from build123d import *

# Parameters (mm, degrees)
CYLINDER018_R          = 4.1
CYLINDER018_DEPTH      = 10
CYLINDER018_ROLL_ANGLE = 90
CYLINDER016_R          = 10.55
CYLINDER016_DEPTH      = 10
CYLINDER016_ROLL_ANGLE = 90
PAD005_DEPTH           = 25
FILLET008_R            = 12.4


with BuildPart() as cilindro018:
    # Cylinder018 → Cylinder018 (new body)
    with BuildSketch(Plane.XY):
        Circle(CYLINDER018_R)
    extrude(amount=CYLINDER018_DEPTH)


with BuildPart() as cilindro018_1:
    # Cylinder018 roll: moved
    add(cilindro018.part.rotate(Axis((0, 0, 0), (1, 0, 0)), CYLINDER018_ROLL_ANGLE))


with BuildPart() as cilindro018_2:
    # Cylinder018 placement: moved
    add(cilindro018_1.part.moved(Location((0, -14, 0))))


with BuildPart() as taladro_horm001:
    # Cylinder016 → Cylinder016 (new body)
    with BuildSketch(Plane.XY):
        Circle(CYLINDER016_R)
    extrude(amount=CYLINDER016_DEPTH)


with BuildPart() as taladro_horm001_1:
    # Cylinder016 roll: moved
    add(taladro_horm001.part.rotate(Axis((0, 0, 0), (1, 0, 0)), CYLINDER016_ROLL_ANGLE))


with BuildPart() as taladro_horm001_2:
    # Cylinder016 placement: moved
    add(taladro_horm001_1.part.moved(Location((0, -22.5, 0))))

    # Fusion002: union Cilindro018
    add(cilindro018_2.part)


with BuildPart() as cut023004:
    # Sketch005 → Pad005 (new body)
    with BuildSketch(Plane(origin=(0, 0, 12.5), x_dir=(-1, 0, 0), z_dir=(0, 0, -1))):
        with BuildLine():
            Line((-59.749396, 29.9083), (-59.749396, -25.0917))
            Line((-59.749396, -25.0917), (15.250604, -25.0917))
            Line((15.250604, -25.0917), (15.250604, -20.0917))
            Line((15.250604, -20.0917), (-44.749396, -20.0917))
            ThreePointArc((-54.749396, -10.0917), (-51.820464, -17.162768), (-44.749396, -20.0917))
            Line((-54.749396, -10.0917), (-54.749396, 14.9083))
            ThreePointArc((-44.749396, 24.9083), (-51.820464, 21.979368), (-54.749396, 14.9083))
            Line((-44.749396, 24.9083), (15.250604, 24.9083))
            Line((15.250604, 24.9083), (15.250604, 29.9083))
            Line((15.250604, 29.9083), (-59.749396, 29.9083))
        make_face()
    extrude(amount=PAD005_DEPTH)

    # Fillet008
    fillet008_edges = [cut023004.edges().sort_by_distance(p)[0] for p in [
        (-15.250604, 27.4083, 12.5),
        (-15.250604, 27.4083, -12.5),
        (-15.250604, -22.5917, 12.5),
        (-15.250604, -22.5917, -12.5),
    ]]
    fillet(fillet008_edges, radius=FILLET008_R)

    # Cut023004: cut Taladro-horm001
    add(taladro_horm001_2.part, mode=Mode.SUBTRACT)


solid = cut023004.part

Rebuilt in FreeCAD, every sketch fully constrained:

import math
import FreeCAD as App
import Part
import Sketcher
from FreeCAD import Vector
Q = App.Units.Quantity


def edges_at(feature, points):
    """Names of the edges that pass closest to the given points."""
    edges = feature.Shape.Edges
    near = lambda p: min(range(len(edges)), key=lambda i: edges[i].distToShape(Part.Vertex(*p))[0])
    return sorted({f"Edge{near(p) + 1}" for p in points})

doc = App.newDocument("Part")
body = doc.addObject("PartDesign::Body", "Body")

# Sketch on XY plane
sketch1 = body.newObject("Sketcher::SketchObject", "Sketch")
sketch1.AttachmentSupport = (doc.getObject("XY_Plane"), [""])
sketch1.MapMode = "FlatFace"
sketch1.addGeometry(Part.Circle(Vector(0, 0, 0), Vector(0, 0, 1), 4.1), False)
sketch1.addConstraint([
    Sketcher.Constraint("Coincident", 0, 3, -1, 1),
    Sketcher.Constraint("Diameter", 0, Q("8.2 mm")),
])
pad1 = body.newObject("PartDesign::Pad", "Pad")
pad1.Profile = sketch1
pad1.Length = 10
body2 = doc.addObject("PartDesign::Body", "Body001")
doc.recompute()

body.Placement = App.Placement(Vector(0, 0, 0), App.Rotation(Vector(1, 0, 0), 90))
boolean = body2.newObject("PartDesign::Boolean", "Boolean")
boolean.Type = "Fuse"
boolean.addObjects([body])
body3 = doc.addObject("PartDesign::Body", "Body002")
doc.recompute()

body2.Placement = App.Placement(Vector(0, -14, 0), App.Rotation(Vector(0, 0, 1), 0))
boolean2 = body3.newObject("PartDesign::Boolean", "Boolean001")
boolean2.Type = "Fuse"
boolean2.addObjects([body2])
body4 = doc.addObject("PartDesign::Body", "Body003")

# Sketch on XY plane
sketch2 = body4.newObject("Sketcher::SketchObject", "Sketch001")
sketch2.AttachmentSupport = (doc.getObject("XY_Plane003"), [""])
sketch2.MapMode = "FlatFace"
sketch2.addGeometry(Part.Circle(Vector(0, 0, 0), Vector(0, 0, 1), 11), False)
sketch2.addConstraint([
    Sketcher.Constraint("Coincident", 0, 3, -1, 1),
    Sketcher.Constraint("Diameter", 0, Q("21.1 mm")),
])
pad2 = body4.newObject("PartDesign::Pad", "Pad001")
pad2.Profile = sketch2
pad2.Length = 10
body5 = doc.addObject("PartDesign::Body", "Body004")
doc.recompute()

body4.Placement = App.Placement(Vector(0, 0, 0), App.Rotation(Vector(1, 0, 0), 90))
boolean3 = body5.newObject("PartDesign::Boolean", "Boolean002")
boolean3.Type = "Fuse"
boolean3.addObjects([body4])
body6 = doc.addObject("PartDesign::Body", "Body005")
doc.recompute()

body5.Placement = App.Placement(Vector(0, -22.5, 0), App.Rotation(Vector(0, 0, 1), 0))
boolean4 = body6.newObject("PartDesign::Boolean", "Boolean003")
boolean4.Type = "Fuse"
boolean4.addObjects([body5])
doc.recompute()

boolean5 = body6.newObject("PartDesign::Boolean", "Boolean004")
boolean5.Type = "Fuse"
boolean5.addObjects([body3])
body7 = doc.addObject("PartDesign::Body", "Body006")

# Sketch on XY plane
sketch3 = body7.newObject("Sketcher::SketchObject", "Sketch002")
sketch3.AttachmentSupport = (doc.getObject("XY_Plane006"), [""])
sketch3.MapMode = "FlatFace"
sketch3.AttachmentOffset = App.Placement(Vector(0, 0, 12.5), App.Rotation())
sketch3.addGeometry([
    Part.LineSegment(Vector(60, 30, 0), Vector(60, -25, 0)),  # 0
    Part.LineSegment(Vector(60, -25, 0), Vector(-15, -25, 0)),  # 1
    Part.LineSegment(Vector(-15, -25, 0), Vector(-15, -20, 0)),  # 2
    Part.LineSegment(Vector(-15, -20, 0), Vector(45, -20, 0)),  # 3
    Part.ArcOfCircle(Part.Circle(Vector(45, -10, 0), Vector(0, 0, 1), 10), math.radians(-90), math.radians(0)),  # 4
    Part.LineSegment(Vector(55, -10, 0), Vector(55, 15, 0)),  # 5
    Part.ArcOfCircle(Part.Circle(Vector(45, 15, 0), Vector(0, 0, 1), 10), math.radians(0), math.radians(90)),  # 6
    Part.LineSegment(Vector(45, 25, 0), Vector(-15, 25, 0)),  # 7
    Part.LineSegment(Vector(-15, 25, 0), Vector(-15, 30, 0)),  # 8
    Part.LineSegment(Vector(-15, 30, 0), Vector(60, 30, 0)),  # 9
], False)
sketch3.addConstraint([
    Sketcher.Constraint("Coincident", 0, 2, 1, 1),
    Sketcher.Constraint("Coincident", 1, 2, 2, 1),
    Sketcher.Constraint("Coincident", 2, 2, 3, 1),
    Sketcher.Constraint("Tangent", 3, 2, 4, 1),
    Sketcher.Constraint("Tangent", 4, 2, 5, 1),
    Sketcher.Constraint("Tangent", 5, 2, 6, 1),
    Sketcher.Constraint("Tangent", 6, 2, 7, 1),
    Sketcher.Constraint("Coincident", 7, 2, 8, 1),
    Sketcher.Constraint("Coincident", 8, 2, 9, 1),
    Sketcher.Constraint("Coincident", 9, 2, 0, 1),
    Sketcher.Constraint("Vertical", 0),
    Sketcher.Constraint("Horizontal", 1),
    Sketcher.Constraint("Vertical", 2),
    Sketcher.Constraint("Horizontal", 3),
    Sketcher.Constraint("Vertical", 5),
    Sketcher.Constraint("Horizontal", 7),
    Sketcher.Constraint("Vertical", 8),
    Sketcher.Constraint("Horizontal", 9),
    Sketcher.Constraint("Equal", 4, 6),
    Sketcher.Constraint("Vertical", 2, 2, 7, 2),
    Sketcher.Constraint("Equal", 2, 8),
    Sketcher.Constraint("Radius", 4, Q("9.999999 mm")),
    Sketcher.Constraint("DistanceX", 1, 2, 1, 1, Q("75 mm")),
    Sketcher.Constraint("DistanceX", 3, 1, 3, 2, Q("60 mm")),
    Sketcher.Constraint("DistanceY", 0, 2, 0, 1, Q("55 mm")),
    Sketcher.Constraint("DistanceY", 2, 1, 2, 2, Q("5 mm")),
    Sketcher.Constraint("DistanceY", 4, 3, -1, 1, Q("10.091701 mm")),
    Sketcher.Constraint("DistanceX", -1, 1, 4, 3, Q("44.749397 mm")),
])
pad3 = body7.newObject("PartDesign::Pad", "Pad002")
pad3.Profile = sketch3
pad3.Length = 25
pad3.Reversed = True
doc.recompute()

fillet = body7.newObject("PartDesign::Fillet", "Fillet")
fillet.Base = (pad3, edges_at(pad3, [
    (-15.251, 27.408, 12.5),
    (-15.251, 27.408, -12.5),
    (-15.251, -22.592, 12.5),
    (-15.251, -22.592, -12.5),
]))
fillet.Radius = 12.4
doc.recompute()

boolean6 = body7.newObject("PartDesign::Boolean", "Boolean005")
boolean6.Type = "Cut"
boolean6.addObjects([body6])

doc.recompute()
